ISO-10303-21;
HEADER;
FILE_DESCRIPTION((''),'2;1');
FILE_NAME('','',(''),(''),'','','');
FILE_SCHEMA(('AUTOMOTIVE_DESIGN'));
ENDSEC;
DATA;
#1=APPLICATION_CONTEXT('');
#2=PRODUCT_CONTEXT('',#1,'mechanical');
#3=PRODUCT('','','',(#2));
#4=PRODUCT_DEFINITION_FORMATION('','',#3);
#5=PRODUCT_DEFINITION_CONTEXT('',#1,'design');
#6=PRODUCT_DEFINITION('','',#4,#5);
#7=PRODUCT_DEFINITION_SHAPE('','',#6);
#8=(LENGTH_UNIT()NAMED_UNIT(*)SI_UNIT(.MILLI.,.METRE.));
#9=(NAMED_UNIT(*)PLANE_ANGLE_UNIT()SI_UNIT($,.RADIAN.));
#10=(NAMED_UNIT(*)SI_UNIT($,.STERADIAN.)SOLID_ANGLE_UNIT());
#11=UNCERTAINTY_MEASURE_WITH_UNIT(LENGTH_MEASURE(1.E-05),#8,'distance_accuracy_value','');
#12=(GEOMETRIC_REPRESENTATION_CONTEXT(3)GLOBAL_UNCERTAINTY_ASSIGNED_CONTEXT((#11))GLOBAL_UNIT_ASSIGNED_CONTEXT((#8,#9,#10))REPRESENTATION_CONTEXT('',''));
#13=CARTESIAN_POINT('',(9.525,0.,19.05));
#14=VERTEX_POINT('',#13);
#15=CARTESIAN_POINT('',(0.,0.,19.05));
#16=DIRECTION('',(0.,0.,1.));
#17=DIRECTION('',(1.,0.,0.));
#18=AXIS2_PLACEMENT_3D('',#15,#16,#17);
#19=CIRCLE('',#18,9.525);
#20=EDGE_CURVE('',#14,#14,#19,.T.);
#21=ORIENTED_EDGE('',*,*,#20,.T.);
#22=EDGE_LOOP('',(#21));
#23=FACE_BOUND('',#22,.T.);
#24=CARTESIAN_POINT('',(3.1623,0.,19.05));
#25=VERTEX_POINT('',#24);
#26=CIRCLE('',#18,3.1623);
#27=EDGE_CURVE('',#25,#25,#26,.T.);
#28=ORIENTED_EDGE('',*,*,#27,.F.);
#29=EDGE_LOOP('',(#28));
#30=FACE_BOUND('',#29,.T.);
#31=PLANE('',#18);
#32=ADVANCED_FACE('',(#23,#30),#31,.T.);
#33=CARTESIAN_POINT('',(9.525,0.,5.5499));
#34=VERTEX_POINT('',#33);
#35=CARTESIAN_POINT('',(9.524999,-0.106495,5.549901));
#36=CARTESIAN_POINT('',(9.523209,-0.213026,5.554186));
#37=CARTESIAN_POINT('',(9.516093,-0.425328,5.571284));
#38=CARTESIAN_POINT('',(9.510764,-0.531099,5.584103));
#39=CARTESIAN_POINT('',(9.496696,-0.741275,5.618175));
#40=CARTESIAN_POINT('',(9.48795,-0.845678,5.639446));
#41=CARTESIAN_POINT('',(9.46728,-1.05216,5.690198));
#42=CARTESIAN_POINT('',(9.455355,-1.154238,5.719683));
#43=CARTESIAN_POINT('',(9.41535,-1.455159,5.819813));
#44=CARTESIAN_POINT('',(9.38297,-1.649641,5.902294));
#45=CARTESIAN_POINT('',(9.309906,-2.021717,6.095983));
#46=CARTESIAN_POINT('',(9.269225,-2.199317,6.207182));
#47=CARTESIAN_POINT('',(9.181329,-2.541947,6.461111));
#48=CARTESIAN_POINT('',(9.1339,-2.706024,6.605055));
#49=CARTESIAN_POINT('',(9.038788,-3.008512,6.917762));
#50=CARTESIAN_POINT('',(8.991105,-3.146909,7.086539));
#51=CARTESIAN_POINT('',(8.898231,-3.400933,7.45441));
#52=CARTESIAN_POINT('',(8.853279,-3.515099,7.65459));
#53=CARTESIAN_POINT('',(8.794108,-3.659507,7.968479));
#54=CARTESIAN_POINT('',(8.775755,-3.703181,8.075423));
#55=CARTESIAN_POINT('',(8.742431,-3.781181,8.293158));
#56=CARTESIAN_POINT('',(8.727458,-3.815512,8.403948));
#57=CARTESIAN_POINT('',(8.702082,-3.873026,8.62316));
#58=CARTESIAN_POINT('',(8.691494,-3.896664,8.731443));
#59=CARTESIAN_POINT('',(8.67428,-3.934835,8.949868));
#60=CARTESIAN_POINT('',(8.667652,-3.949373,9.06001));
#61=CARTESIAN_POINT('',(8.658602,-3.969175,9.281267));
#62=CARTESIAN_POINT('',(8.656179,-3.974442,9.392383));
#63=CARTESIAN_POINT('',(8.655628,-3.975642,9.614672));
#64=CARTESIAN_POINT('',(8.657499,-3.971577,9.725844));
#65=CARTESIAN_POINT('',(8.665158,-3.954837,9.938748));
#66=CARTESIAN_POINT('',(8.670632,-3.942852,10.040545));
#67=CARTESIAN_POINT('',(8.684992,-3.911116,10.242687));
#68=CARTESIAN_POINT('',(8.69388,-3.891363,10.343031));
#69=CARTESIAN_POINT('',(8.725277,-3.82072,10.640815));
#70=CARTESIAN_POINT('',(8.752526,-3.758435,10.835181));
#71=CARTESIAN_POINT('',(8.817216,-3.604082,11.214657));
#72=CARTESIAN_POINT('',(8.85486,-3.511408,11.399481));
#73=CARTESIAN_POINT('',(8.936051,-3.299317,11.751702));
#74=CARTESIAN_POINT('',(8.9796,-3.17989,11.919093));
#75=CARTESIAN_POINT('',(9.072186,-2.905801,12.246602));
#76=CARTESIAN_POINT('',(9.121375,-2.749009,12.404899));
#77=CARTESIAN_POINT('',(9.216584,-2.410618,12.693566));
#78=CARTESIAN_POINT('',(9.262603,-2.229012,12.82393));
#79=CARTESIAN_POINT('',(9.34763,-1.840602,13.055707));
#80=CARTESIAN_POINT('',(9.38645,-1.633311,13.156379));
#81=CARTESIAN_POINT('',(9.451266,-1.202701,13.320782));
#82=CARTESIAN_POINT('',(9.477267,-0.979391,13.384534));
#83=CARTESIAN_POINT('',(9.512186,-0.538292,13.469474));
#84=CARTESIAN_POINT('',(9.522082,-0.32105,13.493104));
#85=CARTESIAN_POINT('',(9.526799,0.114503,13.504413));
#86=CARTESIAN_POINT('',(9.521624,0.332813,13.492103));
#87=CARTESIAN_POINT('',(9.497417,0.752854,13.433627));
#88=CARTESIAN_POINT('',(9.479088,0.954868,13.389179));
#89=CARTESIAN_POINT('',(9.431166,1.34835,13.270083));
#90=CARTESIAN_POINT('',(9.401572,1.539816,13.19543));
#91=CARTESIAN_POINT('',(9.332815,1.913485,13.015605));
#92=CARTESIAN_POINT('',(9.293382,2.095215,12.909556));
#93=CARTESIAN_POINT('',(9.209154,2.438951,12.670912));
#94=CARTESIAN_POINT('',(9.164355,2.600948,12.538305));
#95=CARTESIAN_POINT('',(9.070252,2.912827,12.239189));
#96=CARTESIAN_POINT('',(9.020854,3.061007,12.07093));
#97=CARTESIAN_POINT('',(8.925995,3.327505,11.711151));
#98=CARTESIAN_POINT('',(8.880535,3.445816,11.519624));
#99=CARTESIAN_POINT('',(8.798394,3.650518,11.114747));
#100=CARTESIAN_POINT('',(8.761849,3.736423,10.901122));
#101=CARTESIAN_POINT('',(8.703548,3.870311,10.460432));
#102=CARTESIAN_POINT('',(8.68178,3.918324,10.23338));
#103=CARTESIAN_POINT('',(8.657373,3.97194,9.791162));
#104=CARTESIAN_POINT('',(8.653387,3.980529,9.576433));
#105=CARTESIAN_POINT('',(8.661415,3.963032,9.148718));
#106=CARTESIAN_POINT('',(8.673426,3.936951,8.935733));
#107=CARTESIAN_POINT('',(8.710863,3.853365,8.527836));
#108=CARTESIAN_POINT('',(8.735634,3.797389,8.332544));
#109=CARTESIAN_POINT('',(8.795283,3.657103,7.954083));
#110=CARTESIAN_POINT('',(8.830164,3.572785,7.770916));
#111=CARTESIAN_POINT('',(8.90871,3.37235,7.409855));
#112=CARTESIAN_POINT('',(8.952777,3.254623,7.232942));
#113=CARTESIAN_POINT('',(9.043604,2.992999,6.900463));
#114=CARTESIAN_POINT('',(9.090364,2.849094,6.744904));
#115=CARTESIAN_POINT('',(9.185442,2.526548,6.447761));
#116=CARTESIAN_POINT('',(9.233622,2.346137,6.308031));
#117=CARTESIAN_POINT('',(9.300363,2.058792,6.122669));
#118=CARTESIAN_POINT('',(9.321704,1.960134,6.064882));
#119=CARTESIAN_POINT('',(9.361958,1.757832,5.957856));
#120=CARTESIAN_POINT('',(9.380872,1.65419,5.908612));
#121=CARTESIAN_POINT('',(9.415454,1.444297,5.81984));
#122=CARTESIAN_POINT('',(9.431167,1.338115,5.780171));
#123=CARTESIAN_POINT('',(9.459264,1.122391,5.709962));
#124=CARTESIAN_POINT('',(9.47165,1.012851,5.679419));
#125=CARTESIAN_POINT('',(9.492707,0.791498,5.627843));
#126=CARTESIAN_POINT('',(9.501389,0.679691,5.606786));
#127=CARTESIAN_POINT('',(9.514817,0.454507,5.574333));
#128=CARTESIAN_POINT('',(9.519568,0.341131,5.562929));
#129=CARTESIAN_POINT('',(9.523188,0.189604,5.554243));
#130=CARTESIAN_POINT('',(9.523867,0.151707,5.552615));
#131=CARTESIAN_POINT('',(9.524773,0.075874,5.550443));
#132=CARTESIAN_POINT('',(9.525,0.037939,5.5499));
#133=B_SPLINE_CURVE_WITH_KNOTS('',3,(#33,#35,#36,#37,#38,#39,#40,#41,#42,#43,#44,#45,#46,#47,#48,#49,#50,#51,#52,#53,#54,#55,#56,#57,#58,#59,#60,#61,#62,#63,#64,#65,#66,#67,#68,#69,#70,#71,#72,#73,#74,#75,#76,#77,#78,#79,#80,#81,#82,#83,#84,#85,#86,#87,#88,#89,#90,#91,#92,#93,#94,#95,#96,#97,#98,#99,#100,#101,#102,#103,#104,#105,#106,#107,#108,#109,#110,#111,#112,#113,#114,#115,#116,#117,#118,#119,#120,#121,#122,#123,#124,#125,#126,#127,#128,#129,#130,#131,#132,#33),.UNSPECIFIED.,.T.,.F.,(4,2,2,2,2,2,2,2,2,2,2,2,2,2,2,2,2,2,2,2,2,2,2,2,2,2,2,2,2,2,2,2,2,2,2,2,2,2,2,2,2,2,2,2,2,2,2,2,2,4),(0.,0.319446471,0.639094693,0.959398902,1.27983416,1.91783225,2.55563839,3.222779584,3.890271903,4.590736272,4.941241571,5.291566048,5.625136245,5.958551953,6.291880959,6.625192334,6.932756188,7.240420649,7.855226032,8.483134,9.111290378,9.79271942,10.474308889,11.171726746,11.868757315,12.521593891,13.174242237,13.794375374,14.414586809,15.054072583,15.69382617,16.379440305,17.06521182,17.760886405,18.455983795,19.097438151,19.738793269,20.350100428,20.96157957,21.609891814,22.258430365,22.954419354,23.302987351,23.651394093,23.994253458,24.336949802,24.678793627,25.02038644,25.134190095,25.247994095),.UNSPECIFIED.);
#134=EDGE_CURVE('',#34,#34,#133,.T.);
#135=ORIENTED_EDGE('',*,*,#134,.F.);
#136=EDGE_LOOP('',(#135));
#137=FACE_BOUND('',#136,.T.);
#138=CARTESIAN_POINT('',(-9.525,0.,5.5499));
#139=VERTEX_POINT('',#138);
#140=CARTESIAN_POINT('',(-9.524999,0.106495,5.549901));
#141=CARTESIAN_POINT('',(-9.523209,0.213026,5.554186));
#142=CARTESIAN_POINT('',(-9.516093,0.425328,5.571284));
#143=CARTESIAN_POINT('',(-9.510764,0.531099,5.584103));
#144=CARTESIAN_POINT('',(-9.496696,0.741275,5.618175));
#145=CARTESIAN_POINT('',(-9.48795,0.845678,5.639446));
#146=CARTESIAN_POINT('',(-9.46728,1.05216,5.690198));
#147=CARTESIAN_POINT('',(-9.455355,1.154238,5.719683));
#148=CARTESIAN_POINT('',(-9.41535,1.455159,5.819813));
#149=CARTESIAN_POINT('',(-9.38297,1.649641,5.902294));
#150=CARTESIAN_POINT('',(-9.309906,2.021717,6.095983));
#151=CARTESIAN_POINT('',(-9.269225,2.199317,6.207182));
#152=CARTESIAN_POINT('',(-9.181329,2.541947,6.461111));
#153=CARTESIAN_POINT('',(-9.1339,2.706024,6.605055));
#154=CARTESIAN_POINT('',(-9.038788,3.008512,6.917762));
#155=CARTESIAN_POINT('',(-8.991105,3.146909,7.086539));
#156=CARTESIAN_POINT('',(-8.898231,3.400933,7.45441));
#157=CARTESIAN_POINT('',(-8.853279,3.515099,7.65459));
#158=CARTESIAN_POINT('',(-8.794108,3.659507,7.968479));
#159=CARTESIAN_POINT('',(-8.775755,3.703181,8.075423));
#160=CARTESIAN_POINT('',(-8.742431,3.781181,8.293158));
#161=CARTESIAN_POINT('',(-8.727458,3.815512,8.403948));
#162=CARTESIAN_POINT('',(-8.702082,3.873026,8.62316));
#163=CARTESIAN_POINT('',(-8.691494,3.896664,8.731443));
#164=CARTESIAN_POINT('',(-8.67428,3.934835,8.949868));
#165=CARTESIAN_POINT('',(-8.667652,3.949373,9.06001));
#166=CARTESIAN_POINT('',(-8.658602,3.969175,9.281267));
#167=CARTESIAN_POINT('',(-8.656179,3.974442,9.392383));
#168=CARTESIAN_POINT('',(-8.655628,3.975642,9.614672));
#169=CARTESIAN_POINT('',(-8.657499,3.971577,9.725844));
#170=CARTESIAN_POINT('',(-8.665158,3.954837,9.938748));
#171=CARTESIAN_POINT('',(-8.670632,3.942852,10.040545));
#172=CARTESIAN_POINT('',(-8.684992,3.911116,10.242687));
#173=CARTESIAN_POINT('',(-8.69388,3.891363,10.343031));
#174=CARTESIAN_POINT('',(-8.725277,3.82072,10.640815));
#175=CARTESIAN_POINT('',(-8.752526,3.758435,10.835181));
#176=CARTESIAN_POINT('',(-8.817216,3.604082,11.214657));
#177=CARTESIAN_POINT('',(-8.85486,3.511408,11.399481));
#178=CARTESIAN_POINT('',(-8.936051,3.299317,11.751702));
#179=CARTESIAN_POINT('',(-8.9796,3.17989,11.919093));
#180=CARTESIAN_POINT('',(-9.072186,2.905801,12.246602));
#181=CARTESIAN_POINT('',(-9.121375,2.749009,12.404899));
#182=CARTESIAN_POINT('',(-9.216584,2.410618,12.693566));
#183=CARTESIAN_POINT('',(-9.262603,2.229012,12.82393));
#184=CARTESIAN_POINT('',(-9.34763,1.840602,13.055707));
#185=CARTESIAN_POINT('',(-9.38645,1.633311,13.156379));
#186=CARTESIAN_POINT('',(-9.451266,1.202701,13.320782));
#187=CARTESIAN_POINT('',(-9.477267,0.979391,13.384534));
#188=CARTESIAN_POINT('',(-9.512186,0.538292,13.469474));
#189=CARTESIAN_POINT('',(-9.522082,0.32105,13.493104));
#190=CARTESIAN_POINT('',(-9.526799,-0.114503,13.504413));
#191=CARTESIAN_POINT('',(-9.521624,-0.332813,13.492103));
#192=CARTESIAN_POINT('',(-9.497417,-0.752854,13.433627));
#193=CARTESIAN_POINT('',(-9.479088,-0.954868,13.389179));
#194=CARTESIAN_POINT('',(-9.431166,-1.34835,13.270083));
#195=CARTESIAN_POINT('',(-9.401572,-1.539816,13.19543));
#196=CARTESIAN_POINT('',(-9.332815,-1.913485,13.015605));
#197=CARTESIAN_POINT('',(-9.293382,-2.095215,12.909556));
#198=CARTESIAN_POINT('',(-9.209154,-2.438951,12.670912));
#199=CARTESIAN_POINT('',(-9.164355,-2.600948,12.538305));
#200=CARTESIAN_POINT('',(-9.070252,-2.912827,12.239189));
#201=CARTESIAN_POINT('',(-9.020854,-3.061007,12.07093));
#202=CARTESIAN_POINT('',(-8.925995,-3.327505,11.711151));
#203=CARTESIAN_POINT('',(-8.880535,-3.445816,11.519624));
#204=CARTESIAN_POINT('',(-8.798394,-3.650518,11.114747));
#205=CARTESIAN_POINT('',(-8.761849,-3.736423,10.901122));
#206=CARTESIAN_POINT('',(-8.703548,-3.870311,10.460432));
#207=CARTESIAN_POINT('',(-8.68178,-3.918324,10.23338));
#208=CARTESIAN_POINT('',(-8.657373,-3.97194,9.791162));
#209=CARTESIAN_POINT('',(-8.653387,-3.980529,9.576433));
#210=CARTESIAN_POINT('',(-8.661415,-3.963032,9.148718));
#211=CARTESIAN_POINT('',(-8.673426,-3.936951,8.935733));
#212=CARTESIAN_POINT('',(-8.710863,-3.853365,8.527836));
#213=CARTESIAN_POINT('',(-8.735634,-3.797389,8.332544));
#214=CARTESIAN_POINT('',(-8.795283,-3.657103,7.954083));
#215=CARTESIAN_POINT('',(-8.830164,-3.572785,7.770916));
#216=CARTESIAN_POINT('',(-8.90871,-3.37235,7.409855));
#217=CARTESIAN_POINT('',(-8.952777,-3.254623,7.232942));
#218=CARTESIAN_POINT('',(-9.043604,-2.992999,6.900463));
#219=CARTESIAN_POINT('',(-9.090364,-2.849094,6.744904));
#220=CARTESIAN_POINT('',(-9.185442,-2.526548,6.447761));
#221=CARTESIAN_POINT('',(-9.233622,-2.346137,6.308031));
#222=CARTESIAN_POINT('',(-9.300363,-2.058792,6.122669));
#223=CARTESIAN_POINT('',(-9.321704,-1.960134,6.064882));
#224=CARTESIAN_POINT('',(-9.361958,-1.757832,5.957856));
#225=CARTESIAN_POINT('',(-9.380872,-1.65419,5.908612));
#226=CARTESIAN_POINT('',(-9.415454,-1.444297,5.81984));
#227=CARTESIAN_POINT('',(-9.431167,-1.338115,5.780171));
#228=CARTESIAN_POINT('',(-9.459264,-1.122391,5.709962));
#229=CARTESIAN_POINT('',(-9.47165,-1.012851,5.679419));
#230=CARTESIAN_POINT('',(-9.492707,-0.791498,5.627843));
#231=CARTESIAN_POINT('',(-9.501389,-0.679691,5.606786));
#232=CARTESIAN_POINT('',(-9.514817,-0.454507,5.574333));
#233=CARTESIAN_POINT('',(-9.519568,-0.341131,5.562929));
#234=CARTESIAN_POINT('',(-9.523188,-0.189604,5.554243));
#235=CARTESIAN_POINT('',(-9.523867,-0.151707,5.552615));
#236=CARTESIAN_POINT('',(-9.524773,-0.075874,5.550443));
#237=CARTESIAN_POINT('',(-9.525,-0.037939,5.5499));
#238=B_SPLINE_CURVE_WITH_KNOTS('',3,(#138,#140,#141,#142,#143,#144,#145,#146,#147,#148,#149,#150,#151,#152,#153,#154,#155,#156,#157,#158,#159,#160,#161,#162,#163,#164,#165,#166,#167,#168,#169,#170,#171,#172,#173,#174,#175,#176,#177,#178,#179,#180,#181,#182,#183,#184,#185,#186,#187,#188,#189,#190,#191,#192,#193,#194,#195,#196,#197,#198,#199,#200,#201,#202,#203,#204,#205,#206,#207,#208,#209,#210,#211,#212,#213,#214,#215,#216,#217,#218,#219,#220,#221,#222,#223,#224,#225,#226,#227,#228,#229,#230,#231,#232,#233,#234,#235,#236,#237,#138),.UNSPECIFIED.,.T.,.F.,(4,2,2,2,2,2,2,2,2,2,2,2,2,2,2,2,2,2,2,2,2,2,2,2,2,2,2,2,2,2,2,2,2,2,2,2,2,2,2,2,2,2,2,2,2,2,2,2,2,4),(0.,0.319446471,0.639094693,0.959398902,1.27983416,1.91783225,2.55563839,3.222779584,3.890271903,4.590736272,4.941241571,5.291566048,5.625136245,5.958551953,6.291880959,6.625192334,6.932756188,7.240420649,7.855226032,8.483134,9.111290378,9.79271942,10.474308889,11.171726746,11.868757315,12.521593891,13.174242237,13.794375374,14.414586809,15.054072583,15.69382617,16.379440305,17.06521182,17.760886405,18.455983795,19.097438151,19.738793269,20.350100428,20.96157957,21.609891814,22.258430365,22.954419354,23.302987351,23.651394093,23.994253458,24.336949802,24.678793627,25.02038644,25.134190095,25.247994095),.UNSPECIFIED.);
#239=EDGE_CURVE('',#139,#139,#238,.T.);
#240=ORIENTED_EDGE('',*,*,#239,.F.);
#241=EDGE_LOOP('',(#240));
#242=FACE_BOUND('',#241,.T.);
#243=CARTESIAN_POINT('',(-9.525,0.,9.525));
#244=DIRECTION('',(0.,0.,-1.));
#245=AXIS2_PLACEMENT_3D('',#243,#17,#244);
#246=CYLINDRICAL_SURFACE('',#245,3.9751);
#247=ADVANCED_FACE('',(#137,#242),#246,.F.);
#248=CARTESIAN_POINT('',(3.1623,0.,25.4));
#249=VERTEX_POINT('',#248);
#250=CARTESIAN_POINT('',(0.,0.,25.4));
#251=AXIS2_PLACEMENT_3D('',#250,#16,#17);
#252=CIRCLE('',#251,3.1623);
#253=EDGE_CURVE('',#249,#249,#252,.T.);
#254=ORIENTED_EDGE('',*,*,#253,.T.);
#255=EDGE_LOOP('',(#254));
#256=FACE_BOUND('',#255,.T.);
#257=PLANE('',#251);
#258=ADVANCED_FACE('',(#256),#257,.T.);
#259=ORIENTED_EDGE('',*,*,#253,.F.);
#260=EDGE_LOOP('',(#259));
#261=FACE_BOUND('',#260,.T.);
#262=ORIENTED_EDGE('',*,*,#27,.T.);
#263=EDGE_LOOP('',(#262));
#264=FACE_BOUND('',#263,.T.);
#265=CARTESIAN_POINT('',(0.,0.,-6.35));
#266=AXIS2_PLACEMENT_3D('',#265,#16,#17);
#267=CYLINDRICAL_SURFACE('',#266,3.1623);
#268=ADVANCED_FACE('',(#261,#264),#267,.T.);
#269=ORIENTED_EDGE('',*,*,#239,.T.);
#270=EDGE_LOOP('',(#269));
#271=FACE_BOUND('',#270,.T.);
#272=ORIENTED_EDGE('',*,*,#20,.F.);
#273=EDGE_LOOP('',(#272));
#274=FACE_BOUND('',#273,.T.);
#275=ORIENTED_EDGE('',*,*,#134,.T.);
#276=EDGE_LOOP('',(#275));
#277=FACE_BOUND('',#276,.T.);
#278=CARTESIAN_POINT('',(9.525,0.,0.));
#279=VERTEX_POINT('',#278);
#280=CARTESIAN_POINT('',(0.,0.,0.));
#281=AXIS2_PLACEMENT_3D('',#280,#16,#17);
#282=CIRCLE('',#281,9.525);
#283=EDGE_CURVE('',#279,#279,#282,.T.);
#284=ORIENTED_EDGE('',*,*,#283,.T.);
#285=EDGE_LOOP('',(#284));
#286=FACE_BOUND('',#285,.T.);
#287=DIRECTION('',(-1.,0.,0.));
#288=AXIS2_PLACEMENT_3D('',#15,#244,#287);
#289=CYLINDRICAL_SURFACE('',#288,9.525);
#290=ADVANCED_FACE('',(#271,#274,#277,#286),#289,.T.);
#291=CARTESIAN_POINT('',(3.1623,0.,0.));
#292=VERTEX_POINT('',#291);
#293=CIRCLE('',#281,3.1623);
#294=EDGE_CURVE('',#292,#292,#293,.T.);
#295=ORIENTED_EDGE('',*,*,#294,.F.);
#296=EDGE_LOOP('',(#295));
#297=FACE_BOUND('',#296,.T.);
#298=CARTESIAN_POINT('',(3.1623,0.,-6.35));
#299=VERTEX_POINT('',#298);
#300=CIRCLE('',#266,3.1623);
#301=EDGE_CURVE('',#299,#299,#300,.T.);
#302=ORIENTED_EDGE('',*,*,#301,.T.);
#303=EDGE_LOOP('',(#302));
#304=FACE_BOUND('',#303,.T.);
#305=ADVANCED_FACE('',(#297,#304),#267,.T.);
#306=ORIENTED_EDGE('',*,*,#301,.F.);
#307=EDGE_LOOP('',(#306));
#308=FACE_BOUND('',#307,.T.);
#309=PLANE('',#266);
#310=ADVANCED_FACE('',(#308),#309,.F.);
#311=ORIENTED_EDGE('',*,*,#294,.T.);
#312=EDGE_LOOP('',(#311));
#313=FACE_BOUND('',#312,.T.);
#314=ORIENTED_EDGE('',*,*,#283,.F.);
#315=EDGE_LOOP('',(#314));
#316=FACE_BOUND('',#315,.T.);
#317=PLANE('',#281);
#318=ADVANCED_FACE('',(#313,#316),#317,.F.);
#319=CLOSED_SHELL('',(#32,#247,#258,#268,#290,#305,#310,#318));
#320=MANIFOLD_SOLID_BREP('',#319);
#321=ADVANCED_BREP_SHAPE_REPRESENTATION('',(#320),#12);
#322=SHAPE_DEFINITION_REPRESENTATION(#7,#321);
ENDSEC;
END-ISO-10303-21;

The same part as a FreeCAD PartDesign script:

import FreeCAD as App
import Part
import Sketcher
Q = App.Units.Quantity

doc = App.newDocument("Part")
body = doc.addObject("PartDesign::Body", "Body")

# Sketch on XY plane
sketch1 = doc.addObject("Sketcher::SketchObject", "Sketch")
body.addObject(sketch1)
sketch1.AttachmentSupport = (doc.XY_Plane, [""])
sketch1.MapMode = "FlatFace"
sketch1.addGeometry(Part.Circle(App.Vector(0, 0, 0), App.Vector(0, 0, 1), 10), False)
sketch1.addConstraint([
    Sketcher.Constraint("Coincident", 0, 3, -1, 1),
    Sketcher.Constraint("Diameter", 0, Q("0.75 in")),
])
pad1 = doc.addObject("PartDesign::Pad", "Pad")
body.addObject(pad1)
pad1.Profile = sketch1
pad1.Length = Q("0.75 in")

# Sketch on XY plane
sketch2 = doc.addObject("Sketcher::SketchObject", "Sketch001")
body.addObject(sketch2)
sketch2.AttachmentSupport = (doc.XY_Plane, [""])
sketch2.MapMode = "FlatFace"
sketch2.AttachmentOffset = App.Placement(App.Vector(0, 0, 0.75 * 25.4), App.Rotation())
sketch2.addGeometry(Part.Circle(App.Vector(0, 0, 0), App.Vector(0, 0, 1), 3.2), False)
sketch2.addConstraint([
    Sketcher.Constraint("Coincident", 0, 3, -1, 1),
    Sketcher.Constraint("Diameter", 0, Q("0.249 in")),
])
pad2 = doc.addObject("PartDesign::Pad", "Pad001")
body.addObject(pad2)
pad2.Profile = sketch2
pad2.Type = "TwoLengths"
pad2.Length = Q("0.25 in")
pad2.Length2 = Q("1 in")

# Sketch on YZ plane
sketch3 = doc.addObject("Sketcher::SketchObject", "Sketch002")
body.addObject(sketch3)
sketch3.AttachmentSupport = (doc.YZ_Plane, [""])
sketch3.MapMode = "FlatFace"
sketch3.addGeometry(Part.Circle(App.Vector(0, 9.5, 0), App.Vector(0, 0, 1), 4), False)
sketch3.addConstraint([
    Sketcher.Constraint("PointOnObject", 0, 3, -2),
    Sketcher.Constraint("Diameter", 0, Q("0.313 in")),
    Sketcher.Constraint("DistanceY", -1, 1, 0, 3, Q("0.375 in")),
])
pocket1 = doc.addObject("PartDesign::Pocket", "Pocket")
body.addObject(pocket1)
pocket1.Profile = sketch3
pocket1.Type = "ThroughAll"
pocket1.Midplane = True

doc.recompute()
